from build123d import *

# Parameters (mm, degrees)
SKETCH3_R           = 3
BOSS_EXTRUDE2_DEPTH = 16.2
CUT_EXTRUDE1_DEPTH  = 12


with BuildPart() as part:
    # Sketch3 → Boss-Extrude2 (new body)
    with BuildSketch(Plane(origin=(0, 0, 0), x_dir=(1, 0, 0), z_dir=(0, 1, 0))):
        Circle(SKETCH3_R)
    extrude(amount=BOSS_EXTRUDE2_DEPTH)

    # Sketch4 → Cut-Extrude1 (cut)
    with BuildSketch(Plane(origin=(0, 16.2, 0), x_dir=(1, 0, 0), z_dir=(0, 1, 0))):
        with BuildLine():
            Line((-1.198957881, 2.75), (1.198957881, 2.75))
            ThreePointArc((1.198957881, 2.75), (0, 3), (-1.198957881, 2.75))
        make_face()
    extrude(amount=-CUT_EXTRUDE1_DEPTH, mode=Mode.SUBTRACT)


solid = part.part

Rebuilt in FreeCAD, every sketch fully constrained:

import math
import FreeCAD as App
import Part
import Sketcher
from FreeCAD import Vector

doc = App.newDocument("Part")
body = doc.addObject("PartDesign::Body", "Body")

# Sketch on XZ plane
sketch1 = body.newObject("Sketcher::SketchObject", "Sketch")
sketch1.AttachmentSupport = (doc.getObject("XZ_Plane"), [""])
sketch1.MapMode = "FlatFace"
sketch1.addGeometry(Part.Circle(Vector(0, 0, 0), Vector(0, 0, 1), 3), False)
sketch1.addConstraint([
    Sketcher.Constraint("Coincident", 0, 3, -1, 1),
    Sketcher.Constraint("Diameter", 0, 6.0),
])
pad1 = body.newObject("PartDesign::Pad", "Pad")
pad1.Profile = sketch1
pad1.Length = 16.2
pad1.Reversed = True

# Sketch on XZ plane
sketch2 = body.newObject("Sketcher::SketchObject", "Sketch001")
sketch2.AttachmentSupport = (doc.getObject("XZ_Plane"), [""])
sketch2.MapMode = "FlatFace"
sketch2.AttachmentOffset = App.Placement(Vector(0, 0, -16.2), App.Rotation())
sketch2.addGeometry([
    Part.LineSegment(Vector(-1.2, -2.8, 0), Vector(1.2, -2.8, 0)),
    Part.ArcOfCircle(Part.Circle(Vector(0, 0, 0), Vector(0, 0, 1), 3), math.radians(-114), math.radians(-66)),
], False)
sketch2.addConstraint([
    Sketcher.Constraint("Coincident", 0, 1, 1, 1),
    Sketcher.Constraint("Coincident", 1, 2, 0, 2),
    Sketcher.Constraint("Horizontal", 0),
    Sketcher.Constraint("Coincident", 1, 3, -1, 1),
    Sketcher.Constraint("Radius", 1, 3.0),
    Sketcher.Constraint("DistanceY", 0, 1, -1, 1, 2.75),
])
pocket1 = body.newObject("PartDesign::Pocket", "Pocket")
pocket1.Profile = sketch2
pocket1.Length = 12
pocket1.Reversed = True

doc.recompute()
